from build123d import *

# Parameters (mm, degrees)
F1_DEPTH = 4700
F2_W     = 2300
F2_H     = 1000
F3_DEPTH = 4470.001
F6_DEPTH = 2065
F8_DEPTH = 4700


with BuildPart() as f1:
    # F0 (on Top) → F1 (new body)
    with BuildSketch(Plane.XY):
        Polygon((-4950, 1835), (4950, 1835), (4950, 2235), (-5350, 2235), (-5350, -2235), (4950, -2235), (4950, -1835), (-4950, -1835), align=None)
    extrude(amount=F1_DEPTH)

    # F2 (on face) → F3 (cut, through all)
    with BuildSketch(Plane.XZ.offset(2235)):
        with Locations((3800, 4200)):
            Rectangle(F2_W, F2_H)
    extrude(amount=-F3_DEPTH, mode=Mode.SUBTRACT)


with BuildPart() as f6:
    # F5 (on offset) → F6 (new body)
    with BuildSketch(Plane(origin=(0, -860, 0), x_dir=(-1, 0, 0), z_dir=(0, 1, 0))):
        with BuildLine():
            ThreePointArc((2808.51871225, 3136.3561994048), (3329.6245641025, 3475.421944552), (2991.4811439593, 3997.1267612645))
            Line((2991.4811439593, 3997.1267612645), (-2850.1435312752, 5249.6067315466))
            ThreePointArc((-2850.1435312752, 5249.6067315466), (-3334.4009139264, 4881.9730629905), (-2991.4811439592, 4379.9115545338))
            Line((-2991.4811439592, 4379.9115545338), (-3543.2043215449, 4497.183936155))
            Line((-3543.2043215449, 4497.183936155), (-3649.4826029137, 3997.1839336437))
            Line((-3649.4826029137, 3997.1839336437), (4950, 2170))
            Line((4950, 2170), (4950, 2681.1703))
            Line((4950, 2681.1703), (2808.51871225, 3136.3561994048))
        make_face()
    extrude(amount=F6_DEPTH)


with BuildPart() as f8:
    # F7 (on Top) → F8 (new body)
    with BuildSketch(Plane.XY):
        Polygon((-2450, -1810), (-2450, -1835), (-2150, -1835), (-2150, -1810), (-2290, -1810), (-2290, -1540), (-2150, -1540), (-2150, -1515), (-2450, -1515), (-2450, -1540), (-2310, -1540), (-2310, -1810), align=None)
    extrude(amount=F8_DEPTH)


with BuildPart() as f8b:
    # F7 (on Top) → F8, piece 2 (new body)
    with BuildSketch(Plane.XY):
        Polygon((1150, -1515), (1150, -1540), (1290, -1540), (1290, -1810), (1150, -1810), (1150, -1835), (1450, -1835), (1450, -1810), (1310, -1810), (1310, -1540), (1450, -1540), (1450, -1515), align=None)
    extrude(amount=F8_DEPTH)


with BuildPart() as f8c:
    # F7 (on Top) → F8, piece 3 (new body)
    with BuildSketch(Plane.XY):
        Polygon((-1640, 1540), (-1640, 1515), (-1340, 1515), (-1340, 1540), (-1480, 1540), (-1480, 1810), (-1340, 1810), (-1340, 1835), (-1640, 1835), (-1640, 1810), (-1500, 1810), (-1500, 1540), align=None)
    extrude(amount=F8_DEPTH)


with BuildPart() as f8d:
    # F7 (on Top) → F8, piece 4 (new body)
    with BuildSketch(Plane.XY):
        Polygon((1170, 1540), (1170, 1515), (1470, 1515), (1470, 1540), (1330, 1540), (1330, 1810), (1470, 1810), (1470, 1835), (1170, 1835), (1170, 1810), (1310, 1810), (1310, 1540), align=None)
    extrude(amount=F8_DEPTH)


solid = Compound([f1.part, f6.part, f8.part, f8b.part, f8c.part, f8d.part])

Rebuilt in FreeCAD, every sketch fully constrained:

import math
import FreeCAD as App
import Part
import Sketcher
Q = App.Units.Quantity


def add_polygon(sketch, points):
    """Adds a closed chain of lines whose ends are joined by coincident constraints."""
    first, n = sketch.GeometryCount, len(points)
    for a, b in zip(points, points[1:] + points[:1]):
        sketch.addGeometry(Part.LineSegment(App.Vector(*a, 0), App.Vector(*b, 0)), False)
    for i in range(n):
        sketch.addConstraint(Sketcher.Constraint("Coincident", first + i, 2, first + (i + 1) % n, 1))

doc = App.newDocument("Part")
body = doc.addObject("PartDesign::Body", "Body")

sketch1 = body.newObject("Sketcher::SketchObject", "Sketch")
sketch1.AttachmentSupport = (doc.getObject("XY_Plane"), [""])
sketch1.MapMode = "FlatFace"
add_polygon(sketch1, [(-4950, 1835), (4950, 1835), (4950, 2235), (-5350, 2235), (-5350, -2235), (4950, -2235), (4950, -1835), (-4950, -1835)])
sketch1.addConstraint([
    Sketcher.Constraint("Horizontal", 0),
    Sketcher.Constraint("Vertical", 1),
    Sketcher.Constraint("Horizontal", 2),
    Sketcher.Constraint("Vertical", 3),
    Sketcher.Constraint("Horizontal", 4),
    Sketcher.Constraint("Vertical", 5),
    Sketcher.Constraint("Horizontal", 6),
    Sketcher.Constraint("Vertical", 7),
    Sketcher.Constraint("Symmetric", 0, 2, 6, 2, -1, 1),
    Sketcher.Constraint("Symmetric", 1, 2, 4, 2, -1),
    Sketcher.Constraint("DistanceX", 0, 1, 0, 2, Q("9900 mm")),
    Sketcher.Constraint("DistanceX", 2, 2, 2, 1, Q("10300 mm")),
    Sketcher.Constraint("DistanceY", 1, 1, 1, 2, Q("400 mm")),
    Sketcher.Constraint("DistanceY", 3, 2, 3, 1, Q("4470 mm")),
])
pad1 = body.newObject("PartDesign::Pad", "Pad")
pad1.Profile = sketch1
pad1.Length = 4700

sketch2 = body.newObject("Sketcher::SketchObject", "Sketch001")
sketch2.AttachmentSupport = (doc.getObject("XZ_Plane"), [""])
sketch2.MapMode = "FlatFace"
sketch2.AttachmentOffset = App.Placement(App.Vector(0, 0, 2235), App.Rotation())
add_polygon(sketch2, [(2650, 4700), (2650, 3700), (4950, 3700), (4950, 4700)])
sketch2.addConstraint([
    Sketcher.Constraint("Vertical", 0),
    Sketcher.Constraint("Horizontal", 1),
    Sketcher.Constraint("Vertical", 2),
    Sketcher.Constraint("Horizontal", 3),
    Sketcher.Constraint("DistanceX", 1, 1, 1, 2, Q("2300 mm")),
    Sketcher.Constraint("DistanceY", 0, 2, 0, 1, Q("1000 mm")),
    Sketcher.Constraint("DistanceX", -1, 1, 0, 2, Q("2650 mm")),
    Sketcher.Constraint("DistanceY", -1, 1, 0, 2, Q("3700 mm")),
])
pocket1 = body.newObject("PartDesign::Pocket", "Pocket")
pocket1.Profile = sketch2
pocket1.Type = "ThroughAll"
body2 = doc.addObject("PartDesign::Body", "Body001")

sketch3 = body2.newObject("Sketcher::SketchObject", "Sketch002")
sketch3.AttachmentSupport = (doc.getObject("XZ_Plane001"), [""])
sketch3.MapMode = "FlatFace"
sketch3.AttachmentOffset = App.Placement(App.Vector(0, 0, 860), App.Rotation())
sketch3.addGeometry([
    Part.ArcOfCircle(Part.Circle(App.Vector(-2899, 3567, 0), App.Vector(0, 0, 1), 440), math.radians(102), math.radians(282)),
    Part.LineSegment(App.Vector(-2991, 3997, 0), App.Vector(2850, 5250, 0)),
    Part.ArcOfCircle(Part.Circle(App.Vector(2899, 4811, 0), App.Vector(0, 0, 1), 441), math.radians(-78), math.radians(96)),
    Part.LineSegment(App.Vector(2991, 4380, 0), App.Vector(3543, 4497, 0)),
    Part.LineSegment(App.Vector(3543, 4497, 0), App.Vector(3649, 3997, 0)),
    Part.LineSegment(App.Vector(3649, 3997, 0), App.Vector(-4950, 2170, 0)),
    Part.LineSegment(App.Vector(-4950, 2170, 0), App.Vector(-4950, 2681, 0)),
    Part.LineSegment(App.Vector(-4950, 2681, 0), App.Vector(-2809, 3136, 0)),
], False)
sketch3.addConstraint([
    Sketcher.Constraint("Tangent", 0, 1, 1, 1),
    Sketcher.Constraint("Coincident", 1, 2, 2, 2),
    Sketcher.Constraint("Coincident", 2, 1, 3, 1),
    Sketcher.Constraint("Coincident", 3, 2, 4, 1),
    Sketcher.Constraint("Coincident", 4, 2, 5, 1),
    Sketcher.Constraint("Coincident", 5, 2, 6, 1),
    Sketcher.Constraint("Coincident", 6, 2, 7, 1),
    Sketcher.Constraint("Coincident", 7, 2, 0, 2),
    Sketcher.Constraint("Vertical", 6),
    Sketcher.Constraint("Perpendicular", 3, 4),
    Sketcher.Constraint("Perpendicular", 4, 7),
    Sketcher.Constraint("Angle", 3, Q("12 deg")),
    Sketcher.Constraint("DistanceX", 5, 2, -1, 1, Q("4950 mm")),
    Sketcher.Constraint("DistanceY", -1, 1, 5, 2, Q("2170 mm")),
    Sketcher.Constraint("Radius", 2, Q("441.106039 mm")),
    Sketcher.Constraint("Distance", 3, Q("564.049002 mm")),
    Sketcher.Constraint("DistanceY", 6, 1, 6, 2, Q("511.1703 mm")),
    Sketcher.Constraint("Radius", 0, Q("440.001033 mm")),
    Sketcher.Constraint("Distance", 4, Q("511.1703 mm")),
    Sketcher.Constraint("DistanceY", -1, 1, 7, 2, Q("3136.356199 mm")),
    Sketcher.Constraint("DistanceX", 0, 1, 2, 3, Q("5890.488098 mm")),
    Sketcher.Constraint("DistanceX", 0, 3, -1, 1, Q("2899.23861 mm")),
    Sketcher.Constraint("DistanceX", -1, 1, 1, 2, Q("2850.143531 mm")),
    Sketcher.Constraint("DistanceY", -1, 1, 1, 2, Q("5249.606732 mm")),
    Sketcher.Constraint("DistanceX", -1, 1, 3, 2, Q("3543.204322 mm")),
])
pad2 = body2.newObject("PartDesign::Pad", "Pad001")
pad2.Profile = sketch3
pad2.Length = 2065
pad2.Reversed = True
body3 = doc.addObject("PartDesign::Body", "Body002")

sketch4 = body3.newObject("Sketcher::SketchObject", "Sketch003")
sketch4.AttachmentSupport = (doc.getObject("XY_Plane002"), [""])
sketch4.MapMode = "FlatFace"
add_polygon(sketch4, [(-2450, -1810), (-2450, -1835), (-2150, -1835), (-2150, -1810), (-2290, -1810), (-2290, -1540), (-2150, -1540), (-2150, -1515), (-2450, -1515), (-2450, -1540), (-2310, -1540), (-2310, -1810)])
sketch4.addConstraint([
    Sketcher.Constraint("Vertical", 0),
    Sketcher.Constraint("Horizontal", 1),
    Sketcher.Constraint("Vertical", 2),
    Sketcher.Constraint("Horizontal", 3),
    Sketcher.Constraint("Vertical", 4),
    Sketcher.Constraint("Horizontal", 5),
    Sketcher.Constraint("Vertical", 6),
    Sketcher.Constraint("Horizontal", 7),
    Sketcher.Constraint("Vertical", 8),
    Sketcher.Constraint("Horizontal", 9),
    Sketcher.Constraint("Vertical", 10),
    Sketcher.Constraint("Horizontal", 11),
    Sketcher.Constraint("Horizontal", 5, 2, 8, 2),
    Sketcher.Constraint("Horizontal", 3, 2, 10, 2),
    Sketcher.Constraint("Vertical", 2, 2, 5, 2),
    Sketcher.Constraint("Vertical", 0, 2, 7, 2),
    Sketcher.Constraint("Equal", 5, 9),
    Sketcher.Constraint("Equal", 2, 6),
    Sketcher.Constraint("DistanceX", 1, 1, 1, 2, Q("300 mm")),
    Sketcher.Constraint("DistanceX", 3, 2, 3, 1, Q("140 mm")),
    Sketcher.Constraint("DistanceY", 0, 2, 0, 1, Q("25 mm")),
    Sketcher.Constraint("DistanceY", 4, 1, 4, 2, Q("270 mm")),
    Sketcher.Constraint("DistanceX", 0, 2, -1, 1, Q("2450 mm")),
    Sketcher.Constraint("DistanceY", 0, 2, -1, 1, Q("1835 mm")),
])
pad3 = body3.newObject("PartDesign::Pad", "Pad002")
pad3.Profile = sketch4
pad3.Length = 4700
body4 = doc.addObject("PartDesign::Body", "Body003")

sketch5 = body4.newObject("Sketcher::SketchObject", "Sketch004")
sketch5.AttachmentSupport = (doc.getObject("XY_Plane003"), [""])
sketch5.MapMode = "FlatFace"
add_polygon(sketch5, [(1150, -1515), (1150, -1540), (1290, -1540), (1290, -1810), (1150, -1810), (1150, -1835), (1450, -1835), (1450, -1810), (1310, -1810), (1310, -1540), (1450, -1540), (1450, -1515)])
sketch5.addConstraint([
    Sketcher.Constraint("Vertical", 0),
    Sketcher.Constraint("Horizontal", 1),
    Sketcher.Constraint("Vertical", 2),
    Sketcher.Constraint("Horizontal", 3),
    Sketcher.Constraint("Vertical", 4),
    Sketcher.Constraint("Horizontal", 5),
    Sketcher.Constraint("Vertical", 6),
    Sketcher.Constraint("Horizontal", 7),
    Sketcher.Constraint("Vertical", 8),
    Sketcher.Constraint("Horizontal", 9),
    Sketcher.Constraint("Vertical", 10),
    Sketcher.Constraint("Horizontal", 11),
    Sketcher.Constraint("Horizontal", 3, 2, 6, 2),
    Sketcher.Constraint("Horizontal", 1, 2, 8, 2),
    Sketcher.Constraint("Vertical", 0, 2, 3, 2),
    Sketcher.Constraint("Vertical", 6, 2, 9, 2),
    Sketcher.Constraint("Equal", 3, 7),
    Sketcher.Constraint("Equal", 0, 4),
    Sketcher.Constraint("DistanceX", 1, 1, 1, 2, Q("140 mm")),
    Sketcher.Constraint("DistanceX", 5, 1, 5, 2, Q("300 mm")),
    Sketcher.Constraint("DistanceY", 0, 2, 0, 1, Q("25 mm")),
    Sketcher.Constraint("DistanceY", 2, 2, 2, 1, Q("270 mm")),
    Sketcher.Constraint("DistanceX", -1, 1, 0, 2, Q("1150 mm")),
    Sketcher.Constraint("DistanceY", 0, 2, -1, 1, Q("1540 mm")),
])
pad4 = body4.newObject("PartDesign::Pad", "Pad003")
pad4.Profile = sketch5
pad4.Length = 4700
body5 = doc.addObject("PartDesign::Body", "Body004")

sketch6 = body5.newObject("Sketcher::SketchObject", "Sketch005")
sketch6.AttachmentSupport = (doc.getObject("XY_Plane004"), [""])
sketch6.MapMode = "FlatFace"
add_polygon(sketch6, [(-1640, 1540), (-1640, 1515), (-1340, 1515), (-1340, 1540), (-1480, 1540), (-1480, 1810), (-1340, 1810), (-1340, 1835), (-1640, 1835), (-1640, 1810), (-1500, 1810), (-1500, 1540)])
sketch6.addConstraint([
    Sketcher.Constraint("Vertical", 0),
    Sketcher.Constraint("Horizontal", 1),
    Sketcher.Constraint("Vertical", 2),
    Sketcher.Constraint("Horizontal", 3),
    Sketcher.Constraint("Vertical", 4),
    Sketcher.Constraint("Horizontal", 5),
    Sketcher.Constraint("Vertical", 6),
    Sketcher.Constraint("Horizontal", 7),
    Sketcher.Constraint("Vertical", 8),
    Sketcher.Constraint("Horizontal", 9),
    Sketcher.Constraint("Vertical", 10),
    Sketcher.Constraint("Horizontal", 11),
    Sketcher.Constraint("Horizontal", 5, 2, 8, 2),
    Sketcher.Constraint("Horizontal", 3, 2, 10, 2),
    Sketcher.Constraint("Vertical", 2, 2, 5, 2),
    Sketcher.Constraint("Vertical", 0, 2, 7, 2),
    Sketcher.Constraint("Equal", 5, 9),
    Sketcher.Constraint("Equal", 2, 6),
    Sketcher.Constraint("DistanceX", 1, 1, 1, 2, Q("300 mm")),
    Sketcher.Constraint("DistanceX", 3, 2, 3, 1, Q("140 mm")),
    Sketcher.Constraint("DistanceY", 0, 2, 0, 1, Q("25 mm")),
    Sketcher.Constraint("DistanceY", 4, 1, 4, 2, Q("270 mm")),
    Sketcher.Constraint("DistanceX", 0, 2, -1, 1, Q("1640 mm")),
    Sketcher.Constraint("DistanceY", -1, 1, 0, 2, Q("1515 mm")),
])
pad5 = body5.newObject("PartDesign::Pad", "Pad004")
pad5.Profile = sketch6
pad5.Length = 4700
body6 = doc.addObject("PartDesign::Body", "Body005")

sketch7 = body6.newObject("Sketcher::SketchObject", "Sketch006")
sketch7.AttachmentSupport = (doc.getObject("XY_Plane005"), [""])
sketch7.MapMode = "FlatFace"
add_polygon(sketch7, [(1170, 1540), (1170, 1515), (1470, 1515), (1470, 1540), (1330, 1540), (1330, 1810), (1470, 1810), (1470, 1835), (1170, 1835), (1170, 1810), (1310, 1810), (1310, 1540)])
sketch7.addConstraint([
    Sketcher.Constraint("Vertical", 0),
    Sketcher.Constraint("Horizontal", 1),
    Sketcher.Constraint("Vertical", 2),
    Sketcher.Constraint("Horizontal", 3),
    Sketcher.Constraint("Vertical", 4),
    Sketcher.Constraint("Horizontal", 5),
    Sketcher.Constraint("Vertical", 6),
    Sketcher.Constraint("Horizontal", 7),
    Sketcher.Constraint("Vertical", 8),
    Sketcher.Constraint("Horizontal", 9),
    Sketcher.Constraint("Vertical", 10),
    Sketcher.Constraint("Horizontal", 11),
    Sketcher.Constraint("Horizontal", 5, 2, 8, 2),
    Sketcher.Constraint("Horizontal", 3, 2, 10, 2),
    Sketcher.Constraint("Vertical", 2, 2, 5, 2),
    Sketcher.Constraint("Vertical", 0, 2, 7, 2),
    Sketcher.Constraint("Equal", 5, 9),
    Sketcher.Constraint("Equal", 2, 6),
    Sketcher.Constraint("DistanceX", 1, 1, 1, 2, Q("300 mm")),
    Sketcher.Constraint("DistanceX", 3, 2, 3, 1, Q("140 mm")),
    Sketcher.Constraint("DistanceY", 0, 2, 0, 1, Q("25 mm")),
    Sketcher.Constraint("DistanceY", 4, 1, 4, 2, Q("270 mm")),
    Sketcher.Constraint("DistanceX", -1, 1, 0, 2, Q("1170 mm")),
    Sketcher.Constraint("DistanceY", -1, 1, 0, 2, Q("1515 mm")),
])
pad6 = body6.newObject("PartDesign::Pad", "Pad005")
pad6.Profile = sketch7
pad6.Length = 4700

doc.recompute()
